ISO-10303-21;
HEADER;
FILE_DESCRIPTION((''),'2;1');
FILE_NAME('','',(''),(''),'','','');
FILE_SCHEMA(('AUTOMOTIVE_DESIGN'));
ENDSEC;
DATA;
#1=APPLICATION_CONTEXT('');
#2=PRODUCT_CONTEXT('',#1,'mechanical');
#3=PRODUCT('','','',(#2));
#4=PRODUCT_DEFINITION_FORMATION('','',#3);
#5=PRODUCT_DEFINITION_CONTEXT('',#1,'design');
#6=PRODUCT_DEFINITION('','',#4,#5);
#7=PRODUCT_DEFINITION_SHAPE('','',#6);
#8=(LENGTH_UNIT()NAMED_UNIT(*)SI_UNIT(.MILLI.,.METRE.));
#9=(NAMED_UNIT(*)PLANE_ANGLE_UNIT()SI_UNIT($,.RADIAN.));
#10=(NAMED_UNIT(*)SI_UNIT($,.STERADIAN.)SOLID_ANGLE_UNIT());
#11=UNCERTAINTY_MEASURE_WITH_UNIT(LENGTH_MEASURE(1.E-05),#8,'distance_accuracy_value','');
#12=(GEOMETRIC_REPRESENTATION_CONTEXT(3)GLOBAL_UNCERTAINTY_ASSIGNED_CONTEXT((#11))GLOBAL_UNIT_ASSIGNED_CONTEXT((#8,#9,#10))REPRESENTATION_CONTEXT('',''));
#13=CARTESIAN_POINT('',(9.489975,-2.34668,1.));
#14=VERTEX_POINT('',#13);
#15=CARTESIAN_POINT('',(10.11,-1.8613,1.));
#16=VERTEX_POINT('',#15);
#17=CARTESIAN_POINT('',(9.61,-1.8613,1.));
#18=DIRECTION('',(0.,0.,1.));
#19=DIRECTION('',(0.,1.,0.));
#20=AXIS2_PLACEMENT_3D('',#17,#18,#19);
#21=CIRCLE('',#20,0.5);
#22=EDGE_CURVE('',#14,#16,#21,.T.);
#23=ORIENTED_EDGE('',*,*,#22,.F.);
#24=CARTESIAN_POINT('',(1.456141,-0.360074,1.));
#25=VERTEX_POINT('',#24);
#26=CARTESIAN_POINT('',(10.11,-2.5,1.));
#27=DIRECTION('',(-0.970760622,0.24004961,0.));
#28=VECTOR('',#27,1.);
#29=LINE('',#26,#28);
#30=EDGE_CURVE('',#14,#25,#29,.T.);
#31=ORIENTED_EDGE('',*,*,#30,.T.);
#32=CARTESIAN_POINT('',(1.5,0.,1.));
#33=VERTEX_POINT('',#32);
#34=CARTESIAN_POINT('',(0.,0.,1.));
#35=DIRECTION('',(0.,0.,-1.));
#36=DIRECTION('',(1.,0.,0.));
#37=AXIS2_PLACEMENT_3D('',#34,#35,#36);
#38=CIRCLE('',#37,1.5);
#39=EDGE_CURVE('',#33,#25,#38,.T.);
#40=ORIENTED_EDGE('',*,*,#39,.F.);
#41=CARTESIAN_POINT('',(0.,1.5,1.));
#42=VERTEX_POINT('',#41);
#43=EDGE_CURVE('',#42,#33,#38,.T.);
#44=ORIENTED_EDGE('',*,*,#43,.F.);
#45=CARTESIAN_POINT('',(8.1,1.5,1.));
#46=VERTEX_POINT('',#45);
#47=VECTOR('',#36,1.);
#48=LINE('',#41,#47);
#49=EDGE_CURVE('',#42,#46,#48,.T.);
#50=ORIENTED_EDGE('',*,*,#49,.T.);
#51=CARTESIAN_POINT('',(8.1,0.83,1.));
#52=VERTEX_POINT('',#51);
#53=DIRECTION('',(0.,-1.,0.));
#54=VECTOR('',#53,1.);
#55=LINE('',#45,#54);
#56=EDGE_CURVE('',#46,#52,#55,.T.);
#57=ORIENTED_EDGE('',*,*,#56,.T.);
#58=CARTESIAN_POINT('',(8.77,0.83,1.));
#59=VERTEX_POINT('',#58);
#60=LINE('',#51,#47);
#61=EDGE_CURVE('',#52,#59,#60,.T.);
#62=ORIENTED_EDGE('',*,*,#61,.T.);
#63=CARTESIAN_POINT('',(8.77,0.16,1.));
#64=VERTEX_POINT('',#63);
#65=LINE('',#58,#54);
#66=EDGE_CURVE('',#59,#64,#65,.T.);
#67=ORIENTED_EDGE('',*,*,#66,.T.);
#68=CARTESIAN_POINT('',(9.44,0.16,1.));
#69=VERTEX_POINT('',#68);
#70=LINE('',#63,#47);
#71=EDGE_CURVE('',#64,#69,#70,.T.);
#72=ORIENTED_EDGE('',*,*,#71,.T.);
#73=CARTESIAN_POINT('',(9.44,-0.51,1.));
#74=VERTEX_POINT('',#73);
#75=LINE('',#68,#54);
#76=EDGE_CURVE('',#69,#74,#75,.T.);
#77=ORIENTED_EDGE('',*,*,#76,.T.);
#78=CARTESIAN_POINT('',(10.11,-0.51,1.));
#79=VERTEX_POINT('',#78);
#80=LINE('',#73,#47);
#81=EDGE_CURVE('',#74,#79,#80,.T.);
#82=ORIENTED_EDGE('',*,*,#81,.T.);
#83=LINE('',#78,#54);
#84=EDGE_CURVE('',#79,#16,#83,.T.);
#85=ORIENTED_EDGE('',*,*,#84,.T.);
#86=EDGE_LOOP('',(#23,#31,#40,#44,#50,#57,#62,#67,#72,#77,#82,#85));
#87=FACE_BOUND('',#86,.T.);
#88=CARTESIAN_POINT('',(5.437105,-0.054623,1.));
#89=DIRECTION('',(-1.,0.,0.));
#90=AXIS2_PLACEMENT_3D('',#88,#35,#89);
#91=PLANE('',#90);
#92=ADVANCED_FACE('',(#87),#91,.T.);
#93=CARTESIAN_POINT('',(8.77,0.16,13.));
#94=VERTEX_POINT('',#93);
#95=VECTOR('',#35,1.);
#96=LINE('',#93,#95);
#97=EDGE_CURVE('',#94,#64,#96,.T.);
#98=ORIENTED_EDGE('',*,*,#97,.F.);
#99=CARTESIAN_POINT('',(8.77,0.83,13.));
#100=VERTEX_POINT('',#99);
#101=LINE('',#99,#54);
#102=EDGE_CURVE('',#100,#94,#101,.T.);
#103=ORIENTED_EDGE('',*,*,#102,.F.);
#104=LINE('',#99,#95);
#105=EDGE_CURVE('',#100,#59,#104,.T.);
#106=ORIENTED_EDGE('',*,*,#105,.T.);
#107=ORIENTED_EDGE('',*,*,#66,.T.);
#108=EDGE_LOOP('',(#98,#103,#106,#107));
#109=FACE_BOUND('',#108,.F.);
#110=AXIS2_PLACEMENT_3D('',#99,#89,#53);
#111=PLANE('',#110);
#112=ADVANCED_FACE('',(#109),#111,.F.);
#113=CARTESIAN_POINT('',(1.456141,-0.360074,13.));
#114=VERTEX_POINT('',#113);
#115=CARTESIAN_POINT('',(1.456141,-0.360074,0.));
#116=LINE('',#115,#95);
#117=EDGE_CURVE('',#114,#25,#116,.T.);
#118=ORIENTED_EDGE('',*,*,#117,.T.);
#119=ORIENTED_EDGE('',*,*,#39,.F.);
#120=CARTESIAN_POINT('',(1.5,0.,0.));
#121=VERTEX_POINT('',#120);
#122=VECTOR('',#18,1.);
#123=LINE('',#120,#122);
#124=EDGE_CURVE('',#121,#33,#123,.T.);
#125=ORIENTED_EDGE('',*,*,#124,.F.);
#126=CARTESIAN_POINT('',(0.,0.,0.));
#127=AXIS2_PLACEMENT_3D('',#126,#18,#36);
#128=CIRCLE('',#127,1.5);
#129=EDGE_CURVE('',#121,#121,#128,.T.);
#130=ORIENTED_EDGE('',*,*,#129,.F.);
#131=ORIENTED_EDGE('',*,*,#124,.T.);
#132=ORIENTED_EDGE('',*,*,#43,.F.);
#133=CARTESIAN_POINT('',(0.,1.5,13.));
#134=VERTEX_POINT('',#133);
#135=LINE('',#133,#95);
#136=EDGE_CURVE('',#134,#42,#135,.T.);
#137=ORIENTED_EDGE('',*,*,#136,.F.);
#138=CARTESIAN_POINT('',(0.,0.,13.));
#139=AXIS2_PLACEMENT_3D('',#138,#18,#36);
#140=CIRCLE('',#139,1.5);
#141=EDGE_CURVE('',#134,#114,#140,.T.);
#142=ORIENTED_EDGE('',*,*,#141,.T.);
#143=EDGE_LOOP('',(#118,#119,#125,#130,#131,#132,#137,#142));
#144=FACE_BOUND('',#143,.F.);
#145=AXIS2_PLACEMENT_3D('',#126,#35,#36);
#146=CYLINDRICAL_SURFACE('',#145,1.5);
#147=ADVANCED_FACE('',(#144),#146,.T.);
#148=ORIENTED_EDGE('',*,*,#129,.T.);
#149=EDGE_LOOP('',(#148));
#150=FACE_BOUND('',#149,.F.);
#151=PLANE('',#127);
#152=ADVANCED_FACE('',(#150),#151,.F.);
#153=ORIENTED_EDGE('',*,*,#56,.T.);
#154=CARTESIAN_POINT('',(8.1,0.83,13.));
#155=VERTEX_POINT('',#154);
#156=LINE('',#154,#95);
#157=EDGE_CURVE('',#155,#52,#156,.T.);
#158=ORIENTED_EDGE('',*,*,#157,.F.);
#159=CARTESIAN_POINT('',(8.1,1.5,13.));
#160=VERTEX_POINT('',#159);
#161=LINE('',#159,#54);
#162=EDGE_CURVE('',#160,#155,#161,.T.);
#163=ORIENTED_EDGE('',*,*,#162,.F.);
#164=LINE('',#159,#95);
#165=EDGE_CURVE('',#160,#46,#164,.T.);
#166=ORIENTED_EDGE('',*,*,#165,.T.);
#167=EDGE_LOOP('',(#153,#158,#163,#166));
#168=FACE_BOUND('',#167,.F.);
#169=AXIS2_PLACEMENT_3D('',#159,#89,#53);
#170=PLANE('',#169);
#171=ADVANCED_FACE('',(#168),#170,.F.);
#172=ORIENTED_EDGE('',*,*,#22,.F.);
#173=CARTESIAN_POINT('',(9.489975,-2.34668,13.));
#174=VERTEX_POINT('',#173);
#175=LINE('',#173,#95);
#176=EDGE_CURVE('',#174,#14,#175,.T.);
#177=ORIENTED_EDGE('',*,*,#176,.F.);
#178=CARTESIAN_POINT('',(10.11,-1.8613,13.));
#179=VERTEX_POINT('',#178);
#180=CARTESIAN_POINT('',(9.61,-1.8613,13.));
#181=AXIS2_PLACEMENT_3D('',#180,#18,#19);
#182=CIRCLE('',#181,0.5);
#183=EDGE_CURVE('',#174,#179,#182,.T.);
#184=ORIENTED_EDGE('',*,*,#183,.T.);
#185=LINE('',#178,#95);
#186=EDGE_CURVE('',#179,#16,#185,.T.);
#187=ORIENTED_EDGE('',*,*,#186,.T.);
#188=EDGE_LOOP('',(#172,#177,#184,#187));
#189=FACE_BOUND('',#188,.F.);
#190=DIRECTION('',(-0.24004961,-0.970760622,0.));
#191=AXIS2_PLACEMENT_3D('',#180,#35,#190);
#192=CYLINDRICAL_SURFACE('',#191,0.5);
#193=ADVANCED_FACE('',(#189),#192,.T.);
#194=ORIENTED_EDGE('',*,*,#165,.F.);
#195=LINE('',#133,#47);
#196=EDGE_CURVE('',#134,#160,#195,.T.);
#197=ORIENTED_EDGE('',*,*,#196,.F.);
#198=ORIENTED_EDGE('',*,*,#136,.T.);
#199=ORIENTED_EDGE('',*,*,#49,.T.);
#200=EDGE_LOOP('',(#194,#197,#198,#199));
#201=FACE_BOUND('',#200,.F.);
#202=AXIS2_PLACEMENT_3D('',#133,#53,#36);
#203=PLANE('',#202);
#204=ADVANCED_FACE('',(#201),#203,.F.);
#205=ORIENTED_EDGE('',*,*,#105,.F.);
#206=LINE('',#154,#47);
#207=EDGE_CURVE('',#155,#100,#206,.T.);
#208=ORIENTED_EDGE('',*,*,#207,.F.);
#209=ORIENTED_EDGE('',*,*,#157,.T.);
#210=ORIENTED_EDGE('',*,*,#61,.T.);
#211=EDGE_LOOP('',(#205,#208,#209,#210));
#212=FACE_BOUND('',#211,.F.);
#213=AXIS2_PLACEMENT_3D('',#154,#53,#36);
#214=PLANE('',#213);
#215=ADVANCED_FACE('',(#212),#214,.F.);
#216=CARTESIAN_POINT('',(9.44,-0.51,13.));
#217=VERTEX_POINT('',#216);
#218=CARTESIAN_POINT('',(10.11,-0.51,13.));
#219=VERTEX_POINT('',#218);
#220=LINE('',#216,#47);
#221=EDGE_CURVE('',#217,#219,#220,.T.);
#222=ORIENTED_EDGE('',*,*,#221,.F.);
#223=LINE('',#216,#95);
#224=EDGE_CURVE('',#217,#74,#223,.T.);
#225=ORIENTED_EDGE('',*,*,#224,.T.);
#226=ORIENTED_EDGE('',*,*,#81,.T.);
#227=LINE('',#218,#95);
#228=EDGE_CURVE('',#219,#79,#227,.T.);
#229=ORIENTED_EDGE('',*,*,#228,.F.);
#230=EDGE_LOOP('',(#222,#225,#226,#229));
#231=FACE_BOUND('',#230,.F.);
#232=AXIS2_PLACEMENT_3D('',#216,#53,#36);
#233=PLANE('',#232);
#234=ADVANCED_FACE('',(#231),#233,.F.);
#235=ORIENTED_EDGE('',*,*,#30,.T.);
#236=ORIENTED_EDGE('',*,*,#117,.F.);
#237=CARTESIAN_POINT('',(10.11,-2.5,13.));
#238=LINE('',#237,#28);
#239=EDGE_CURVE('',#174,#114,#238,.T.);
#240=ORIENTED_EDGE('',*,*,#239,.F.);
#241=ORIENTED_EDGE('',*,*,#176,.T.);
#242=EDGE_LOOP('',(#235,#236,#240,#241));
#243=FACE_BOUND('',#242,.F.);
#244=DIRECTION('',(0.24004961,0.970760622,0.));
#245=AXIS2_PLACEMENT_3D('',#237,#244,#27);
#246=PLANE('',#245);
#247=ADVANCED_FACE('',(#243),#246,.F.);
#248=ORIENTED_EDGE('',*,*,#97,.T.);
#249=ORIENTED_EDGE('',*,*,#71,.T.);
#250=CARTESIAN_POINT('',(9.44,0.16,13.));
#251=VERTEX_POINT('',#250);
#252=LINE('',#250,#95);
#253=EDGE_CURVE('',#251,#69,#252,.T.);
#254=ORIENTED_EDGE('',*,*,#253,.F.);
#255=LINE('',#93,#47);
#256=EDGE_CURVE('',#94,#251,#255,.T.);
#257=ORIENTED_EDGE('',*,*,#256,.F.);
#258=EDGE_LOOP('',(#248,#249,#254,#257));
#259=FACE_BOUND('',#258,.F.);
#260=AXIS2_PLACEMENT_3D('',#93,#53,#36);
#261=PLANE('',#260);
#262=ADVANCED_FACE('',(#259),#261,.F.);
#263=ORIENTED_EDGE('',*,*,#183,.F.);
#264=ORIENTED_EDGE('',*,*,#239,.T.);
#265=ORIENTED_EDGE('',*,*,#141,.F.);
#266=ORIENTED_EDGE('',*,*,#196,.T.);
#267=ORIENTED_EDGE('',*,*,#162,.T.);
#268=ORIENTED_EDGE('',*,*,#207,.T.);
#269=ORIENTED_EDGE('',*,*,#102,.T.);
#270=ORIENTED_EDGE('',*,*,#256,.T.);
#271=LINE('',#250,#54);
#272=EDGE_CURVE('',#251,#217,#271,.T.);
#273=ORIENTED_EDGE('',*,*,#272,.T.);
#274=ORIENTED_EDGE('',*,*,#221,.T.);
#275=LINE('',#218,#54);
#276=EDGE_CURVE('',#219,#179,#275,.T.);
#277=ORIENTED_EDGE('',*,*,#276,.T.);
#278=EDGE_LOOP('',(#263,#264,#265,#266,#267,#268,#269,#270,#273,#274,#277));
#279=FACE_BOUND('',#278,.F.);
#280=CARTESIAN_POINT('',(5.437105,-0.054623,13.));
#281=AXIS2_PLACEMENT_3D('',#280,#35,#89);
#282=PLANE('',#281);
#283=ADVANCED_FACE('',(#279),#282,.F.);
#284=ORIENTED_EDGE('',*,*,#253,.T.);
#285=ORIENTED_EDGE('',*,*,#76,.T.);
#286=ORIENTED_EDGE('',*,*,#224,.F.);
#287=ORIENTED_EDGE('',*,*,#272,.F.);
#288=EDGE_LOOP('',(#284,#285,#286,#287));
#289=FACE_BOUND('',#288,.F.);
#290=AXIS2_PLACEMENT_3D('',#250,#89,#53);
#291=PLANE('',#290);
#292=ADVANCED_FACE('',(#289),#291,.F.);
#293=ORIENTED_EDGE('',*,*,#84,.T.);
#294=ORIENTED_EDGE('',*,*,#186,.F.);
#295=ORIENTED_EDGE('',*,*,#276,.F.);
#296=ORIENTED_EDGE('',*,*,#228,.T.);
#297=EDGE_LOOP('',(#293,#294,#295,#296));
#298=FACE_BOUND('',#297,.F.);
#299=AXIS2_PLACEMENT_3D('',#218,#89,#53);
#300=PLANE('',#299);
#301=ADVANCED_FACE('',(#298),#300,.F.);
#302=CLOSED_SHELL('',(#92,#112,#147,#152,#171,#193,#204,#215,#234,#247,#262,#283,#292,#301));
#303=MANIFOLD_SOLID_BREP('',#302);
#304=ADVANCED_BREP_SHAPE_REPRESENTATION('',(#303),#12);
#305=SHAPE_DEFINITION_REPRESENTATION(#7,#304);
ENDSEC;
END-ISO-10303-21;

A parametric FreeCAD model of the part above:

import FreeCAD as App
import Part
import Sketcher

V = App.Vector


def edges_at(feature, points):
    """Names of the edges that pass closest to the given points."""
    edges = feature.Shape.Edges
    near = lambda p: min(range(len(edges)), key=lambda i: edges[i].distToShape(Part.Vertex(*p))[0])
    return sorted({f"Edge{near(p) + 1}" for p in points})


def add_polygon(sketch, points):
    """Adds a closed chain of lines whose ends are joined by coincident constraints."""
    first, n = sketch.GeometryCount, len(points)
    for a, b in zip(points, points[1:] + points[:1]):
        sketch.addGeometry(Part.LineSegment(App.Vector(*a, 0), App.Vector(*b, 0)), False)
    for i in range(n):
        sketch.addConstraint(Sketcher.Constraint("Coincident", first + i, 2, first + (i + 1) % n, 1))

doc = App.newDocument("Part")
body = doc.addObject("PartDesign::Body", "Body")

sketch1 = doc.addObject("Sketcher::SketchObject", "Sketch")
body.addObject(sketch1)
sketch1.AttachmentSupport = (doc.XY_Plane, [""])
sketch1.MapMode = "FlatFace"
sketch1.addGeometry(Part.Circle(V(0, 0, 0), V(0, 0, 1), 1.5), False)
sketch1.addConstraint(Sketcher.Constraint("Coincident", 0, 3, -1, 1))
sketch1.addConstraint(Sketcher.Constraint("Diameter", 0, 3.0))
pad1 = doc.addObject("PartDesign::Pad", "Pad")
body.addObject(pad1)
pad1.Profile = sketch1
pad1.Length = 13

sketch2 = doc.addObject("Sketcher::SketchObject", "Sketch001")
body.addObject(sketch2)
sketch2.AttachmentSupport = (doc.XY_Plane, [""])
sketch2.MapMode = "FlatFace"
sketch2.AttachmentOffset = App.Placement(V(0, 0, 13), App.Rotation())
add_polygon(sketch2, [(8.1, 1.5), (0, 1.5), (0, 0), (10.11, -2.5), (10.11, -0.51), (9.44, -0.51), (9.44, 0.16), (8.77, 0.16), (8.77, 0.83), (8.1, 0.83)])
sketch2.addConstraint(Sketcher.Constraint("Horizontal", 0))
sketch2.addConstraint(Sketcher.Constraint("Vertical", 1))
sketch2.addConstraint(Sketcher.Constraint("Vertical", 3))
sketch2.addConstraint(Sketcher.Constraint("Horizontal", 4))
sketch2.addConstraint(Sketcher.Constraint("Vertical", 5))
sketch2.addConstraint(Sketcher.Constraint("Horizontal", 6))
sketch2.addConstraint(Sketcher.Constraint("Vertical", 7))
sketch2.addConstraint(Sketcher.Constraint("Horizontal", 8))
sketch2.addConstraint(Sketcher.Constraint("Vertical", 9))
sketch2.addConstraint(Sketcher.Constraint("Coincident", 1, 2, -1, 1))
sketch2.addConstraint(Sketcher.Constraint("Equal", 4, 6))
sketch2.addConstraint(Sketcher.Constraint("Equal", 6, 8))
sketch2.addConstraint(Sketcher.Constraint("Equal", 8, 5))
sketch2.addConstraint(Sketcher.Constraint("Equal", 5, 7))
sketch2.addConstraint(Sketcher.Constraint("Equal", 7, 9))
sketch2.addConstraint(Sketcher.Constraint("DistanceX", 0, 2, 0, 1, 8.1))
sketch2.addConstraint(Sketcher.Constraint("DistanceY", 1, 2, 1, 1, 1.5))
sketch2.addConstraint(Sketcher.Constraint("DistanceY", 2, 2, 0, 2, 4.0))
sketch2.addConstraint(Sketcher.Constraint("DistanceX", 4, 2, 4, 1, 0.67))
pad2 = doc.addObject("PartDesign::Pad", "Pad001")
body.addObject(pad2)
pad2.Profile = sketch2
pad2.Length = 12
pad2.Reversed = True
doc.recompute()

fillet = doc.addObject("PartDesign::Fillet", "Fillet")
body.addObject(fillet)
fillet.Base = (pad2, edges_at(pad2, [(10.11, -2.5, 7)]))
fillet.Radius = 0.5

doc.recompute()
